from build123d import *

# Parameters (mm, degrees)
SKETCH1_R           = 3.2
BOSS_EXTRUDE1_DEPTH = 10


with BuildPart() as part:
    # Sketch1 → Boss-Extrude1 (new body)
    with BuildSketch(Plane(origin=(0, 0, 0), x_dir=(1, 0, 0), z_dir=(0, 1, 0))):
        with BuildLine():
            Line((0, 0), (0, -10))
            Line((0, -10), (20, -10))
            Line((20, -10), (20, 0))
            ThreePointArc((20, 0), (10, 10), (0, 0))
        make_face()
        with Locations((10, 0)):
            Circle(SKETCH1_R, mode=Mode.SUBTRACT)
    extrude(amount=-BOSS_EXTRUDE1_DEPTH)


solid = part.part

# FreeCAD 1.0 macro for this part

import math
import FreeCAD as App
import Part
import Sketcher
from FreeCAD import Vector
Q = App.Units.Quantity

doc = App.newDocument("Part")
params = doc.addObject("Spreadsheet::Sheet", "Params")
for row, (alias, value) in enumerate([
    ("sketch1_radius", "10 mm"),
    ("sketch1_diameter", "6.4 mm"),
    ("sketch1_height", "10 mm"),
    ("pad1_length", "10 mm"),
], start=1):
    params.set(f"A{row}", alias)
    params.set(f"B{row}", "=" + value)
    params.setAlias(f"B{row}", alias)

body = doc.addObject("PartDesign::Body", "Body")

sketch1 = body.newObject("Sketcher::SketchObject", "Sketch")
sketch1.AttachmentSupport = (doc.getObject("XZ_Plane"), [""])
sketch1.MapMode = "FlatFace"
sketch1.addGeometry(Part.LineSegment(Vector(0, 0, 0), Vector(0, 10, 0)), False)
sketch1.addGeometry(Part.LineSegment(Vector(0, 10, 0), Vector(20, 10, 0)), False)
sketch1.addGeometry(Part.LineSegment(Vector(20, 10, 0), Vector(20, 0, 0)), False)
sketch1.addGeometry(Part.ArcOfCircle(Part.Circle(Vector(10, 0, 0), Vector(0, 0, 1), 10), math.radians(180), math.radians(360)), False)
sketch1.addGeometry(Part.Circle(Vector(10, 0, 0), Vector(0, 0, 1), 3.2), False)
sketch1.addConstraint(Sketcher.Constraint("Coincident", 0, 2, 1, 1))
sketch1.addConstraint(Sketcher.Constraint("Coincident", 1, 2, 2, 1))
sketch1.addConstraint(Sketcher.Constraint("Tangent", 2, 2, 3, 2))
sketch1.addConstraint(Sketcher.Constraint("Tangent", 3, 1, 0, 1))
sketch1.addConstraint(Sketcher.Constraint("Vertical", 0))
sketch1.addConstraint(Sketcher.Constraint("Horizontal", 1))
sketch1.addConstraint(Sketcher.Constraint("Vertical", 2))
sketch1.addConstraint(Sketcher.Constraint("Coincident", 3, 1, -1, 1))
sketch1.addConstraint(Sketcher.Constraint("Coincident", 4, 3, 3, 3))
sketch1.addConstraint(Sketcher.Constraint("Radius", 3, Q("10 mm")))
sketch1.addConstraint(Sketcher.Constraint("Diameter", 4, Q("6.4 mm")))
sketch1.addConstraint(Sketcher.Constraint("DistanceY", 0, 1, 0, 2, Q("10 mm")))
sketch1.setExpression("Constraints[9]", "Params.sketch1_radius")
sketch1.setExpression("Constraints[10]", "Params.sketch1_diameter")
sketch1.setExpression("Constraints[11]", "Params.sketch1_height")
pad1 = body.newObject("PartDesign::Pad", "Pad")
pad1.Profile = sketch1
pad1.setExpression("Length", "Params.pad1_length")

doc.recompute()
